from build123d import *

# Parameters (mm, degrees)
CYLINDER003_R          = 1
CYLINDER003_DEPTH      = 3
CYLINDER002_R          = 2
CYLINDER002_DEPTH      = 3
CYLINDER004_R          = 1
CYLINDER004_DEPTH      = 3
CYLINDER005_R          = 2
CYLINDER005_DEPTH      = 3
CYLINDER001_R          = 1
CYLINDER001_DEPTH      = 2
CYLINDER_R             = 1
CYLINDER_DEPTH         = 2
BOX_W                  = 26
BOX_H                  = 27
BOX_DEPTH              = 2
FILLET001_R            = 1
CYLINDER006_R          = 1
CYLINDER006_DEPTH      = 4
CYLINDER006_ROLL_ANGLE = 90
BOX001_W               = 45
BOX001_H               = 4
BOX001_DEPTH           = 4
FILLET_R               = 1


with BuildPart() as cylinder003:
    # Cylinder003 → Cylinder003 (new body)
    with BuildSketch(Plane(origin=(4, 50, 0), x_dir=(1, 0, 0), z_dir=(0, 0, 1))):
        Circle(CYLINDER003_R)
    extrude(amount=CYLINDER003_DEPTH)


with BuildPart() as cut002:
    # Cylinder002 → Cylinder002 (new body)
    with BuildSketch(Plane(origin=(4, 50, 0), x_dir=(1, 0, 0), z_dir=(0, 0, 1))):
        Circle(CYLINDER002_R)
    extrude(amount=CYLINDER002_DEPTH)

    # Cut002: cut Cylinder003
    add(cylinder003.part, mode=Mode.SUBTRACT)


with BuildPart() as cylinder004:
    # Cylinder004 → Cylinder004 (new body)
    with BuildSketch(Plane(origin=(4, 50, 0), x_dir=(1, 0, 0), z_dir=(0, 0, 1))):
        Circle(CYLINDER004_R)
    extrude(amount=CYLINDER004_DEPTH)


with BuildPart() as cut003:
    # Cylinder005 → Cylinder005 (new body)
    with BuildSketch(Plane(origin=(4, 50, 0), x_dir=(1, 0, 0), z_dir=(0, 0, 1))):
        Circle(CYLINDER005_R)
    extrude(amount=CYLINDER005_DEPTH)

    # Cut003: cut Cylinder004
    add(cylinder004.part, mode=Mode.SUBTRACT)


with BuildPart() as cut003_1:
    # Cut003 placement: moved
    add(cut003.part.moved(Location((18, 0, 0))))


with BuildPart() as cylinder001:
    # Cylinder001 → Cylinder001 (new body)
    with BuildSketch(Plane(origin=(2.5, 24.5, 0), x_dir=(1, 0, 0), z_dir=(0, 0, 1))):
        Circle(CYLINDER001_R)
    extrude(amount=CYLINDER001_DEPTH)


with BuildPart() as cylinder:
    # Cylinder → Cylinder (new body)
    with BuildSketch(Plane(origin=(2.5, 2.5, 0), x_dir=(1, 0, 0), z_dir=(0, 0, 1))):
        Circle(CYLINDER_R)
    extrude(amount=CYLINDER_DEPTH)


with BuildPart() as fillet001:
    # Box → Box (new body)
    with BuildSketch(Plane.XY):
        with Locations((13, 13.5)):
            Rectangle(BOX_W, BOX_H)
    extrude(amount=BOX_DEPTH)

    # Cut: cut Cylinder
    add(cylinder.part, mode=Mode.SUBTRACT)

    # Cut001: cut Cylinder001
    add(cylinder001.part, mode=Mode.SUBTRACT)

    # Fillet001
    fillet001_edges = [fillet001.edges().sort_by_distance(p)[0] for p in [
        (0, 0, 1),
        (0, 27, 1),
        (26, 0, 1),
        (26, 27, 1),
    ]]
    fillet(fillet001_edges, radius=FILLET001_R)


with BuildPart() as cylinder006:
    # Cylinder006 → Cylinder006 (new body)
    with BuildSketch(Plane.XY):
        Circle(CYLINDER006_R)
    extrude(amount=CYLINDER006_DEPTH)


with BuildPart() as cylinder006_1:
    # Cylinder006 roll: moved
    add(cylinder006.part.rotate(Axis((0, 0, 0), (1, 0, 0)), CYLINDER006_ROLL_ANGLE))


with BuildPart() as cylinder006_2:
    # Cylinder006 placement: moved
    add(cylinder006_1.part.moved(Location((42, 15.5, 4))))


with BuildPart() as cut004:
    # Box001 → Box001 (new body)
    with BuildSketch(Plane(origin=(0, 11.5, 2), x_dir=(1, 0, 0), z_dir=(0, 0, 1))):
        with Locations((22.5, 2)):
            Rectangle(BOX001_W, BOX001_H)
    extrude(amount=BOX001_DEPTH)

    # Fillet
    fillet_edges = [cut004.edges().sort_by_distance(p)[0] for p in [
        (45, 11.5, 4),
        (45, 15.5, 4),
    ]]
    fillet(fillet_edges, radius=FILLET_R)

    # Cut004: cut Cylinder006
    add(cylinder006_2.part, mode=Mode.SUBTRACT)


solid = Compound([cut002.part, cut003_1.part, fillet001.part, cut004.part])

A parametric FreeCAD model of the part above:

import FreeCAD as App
import Part
import Sketcher


def edges_at(feature, points):
    """Names of the edges that pass closest to the given points."""
    edges = feature.Shape.Edges
    near = lambda p: min(range(len(edges)), key=lambda i: edges[i].distToShape(Part.Vertex(*p))[0])
    return sorted({f"Edge{near(p) + 1}" for p in points})


def add_polygon(sketch, points):
    """Adds a closed chain of lines whose ends are joined by coincident constraints."""
    first, n = sketch.GeometryCount, len(points)
    for a, b in zip(points, points[1:] + points[:1]):
        sketch.addGeometry(Part.LineSegment(App.Vector(*a, 0), App.Vector(*b, 0)), False)
    for i in range(n):
        sketch.addConstraint(Sketcher.Constraint("Coincident", first + i, 2, first + (i + 1) % n, 1))

doc = App.newDocument("Part")
body = doc.addObject("PartDesign::Body", "Body")

# Sketch on XY plane
sketch1 = doc.addObject("Sketcher::SketchObject", "Sketch")
body.addObject(sketch1)
sketch1.AttachmentSupport = (doc.XY_Plane, [""])
sketch1.MapMode = "FlatFace"
sketch1.addGeometry(Part.Circle(App.Vector(4, 50, 0), App.Vector(0, 0, 1), 1), False)
sketch1.addConstraint(Sketcher.Constraint("Diameter", 0, 2.0))
sketch1.addConstraint(Sketcher.Constraint("DistanceX", -1, 1, 0, 3, 4.0))
sketch1.addConstraint(Sketcher.Constraint("DistanceY", -1, 1, 0, 3, 50.0))
pad1 = doc.addObject("PartDesign::Pad", "Pad")
body.addObject(pad1)
pad1.Profile = sketch1
pad1.Length = 3
body2 = doc.addObject("PartDesign::Body", "Body001")

# Sketch on XY plane
sketch2 = doc.addObject("Sketcher::SketchObject", "Sketch001")
body2.addObject(sketch2)
sketch2.AttachmentSupport = (doc.getObject("XY_Plane001"), [""])
sketch2.MapMode = "FlatFace"
sketch2.addGeometry(Part.Circle(App.Vector(4, 50, 0), App.Vector(0, 0, 1), 2), False)
sketch2.addConstraint(Sketcher.Constraint("Diameter", 0, 4.0))
sketch2.addConstraint(Sketcher.Constraint("DistanceX", -1, 1, 0, 3, 4.0))
sketch2.addConstraint(Sketcher.Constraint("DistanceY", -1, 1, 0, 3, 50.0))
pad2 = doc.addObject("PartDesign::Pad", "Pad001")
body2.addObject(pad2)
pad2.Profile = sketch2
pad2.Length = 3
doc.recompute()

boolean = doc.addObject("PartDesign::Boolean", "Boolean")
body2.addObject(boolean)
boolean.Type = "Cut"
boolean.addObjects([body])
body3 = doc.addObject("PartDesign::Body", "Body002")

# Sketch on XY plane
sketch3 = doc.addObject("Sketcher::SketchObject", "Sketch002")
body3.addObject(sketch3)
sketch3.AttachmentSupport = (doc.getObject("XY_Plane002"), [""])
sketch3.MapMode = "FlatFace"
sketch3.addGeometry(Part.Circle(App.Vector(4, 50, 0), App.Vector(0, 0, 1), 1), False)
sketch3.addConstraint(Sketcher.Constraint("Diameter", 0, 2.0))
sketch3.addConstraint(Sketcher.Constraint("DistanceX", -1, 1, 0, 3, 4.0))
sketch3.addConstraint(Sketcher.Constraint("DistanceY", -1, 1, 0, 3, 50.0))
pad3 = doc.addObject("PartDesign::Pad", "Pad002")
body3.addObject(pad3)
pad3.Profile = sketch3
pad3.Length = 3
body4 = doc.addObject("PartDesign::Body", "Body003")

# Sketch on XY plane
sketch4 = doc.addObject("Sketcher::SketchObject", "Sketch003")
body4.addObject(sketch4)
sketch4.AttachmentSupport = (doc.getObject("XY_Plane003"), [""])
sketch4.MapMode = "FlatFace"
sketch4.addGeometry(Part.Circle(App.Vector(4, 50, 0), App.Vector(0, 0, 1), 2), False)
sketch4.addConstraint(Sketcher.Constraint("Diameter", 0, 4.0))
sketch4.addConstraint(Sketcher.Constraint("DistanceX", -1, 1, 0, 3, 4.0))
sketch4.addConstraint(Sketcher.Constraint("DistanceY", -1, 1, 0, 3, 50.0))
pad4 = doc.addObject("PartDesign::Pad", "Pad003")
body4.addObject(pad4)
pad4.Profile = sketch4
pad4.Length = 3
doc.recompute()

boolean2 = doc.addObject("PartDesign::Boolean", "Boolean001")
body4.addObject(boolean2)
boolean2.Type = "Cut"
boolean2.addObjects([body3])
body5 = doc.addObject("PartDesign::Body", "Body004")
doc.recompute()

body4.Placement = App.Placement(App.Vector(18, 0, 0), App.Rotation(App.Vector(0, 0, 1), 0))
boolean3 = doc.addObject("PartDesign::Boolean", "Boolean002")
body5.addObject(boolean3)
boolean3.Type = "Fuse"
boolean3.addObjects([body4])
body6 = doc.addObject("PartDesign::Body", "Body005")

# Sketch on XY plane
sketch5 = doc.addObject("Sketcher::SketchObject", "Sketch004")
body6.addObject(sketch5)
sketch5.AttachmentSupport = (doc.getObject("XY_Plane005"), [""])
sketch5.MapMode = "FlatFace"
sketch5.addGeometry(Part.Circle(App.Vector(2.5, 24.5, 0), App.Vector(0, 0, 1), 1), False)
sketch5.addConstraint(Sketcher.Constraint("Diameter", 0, 2.0))
sketch5.addConstraint(Sketcher.Constraint("DistanceX", -1, 1, 0, 3, 2.5))
sketch5.addConstraint(Sketcher.Constraint("DistanceY", -1, 1, 0, 3, 24.5))
pad5 = doc.addObject("PartDesign::Pad", "Pad004")
body6.addObject(pad5)
pad5.Profile = sketch5
pad5.Length = 2
body7 = doc.addObject("PartDesign::Body", "Body006")

# Sketch on XY plane
sketch6 = doc.addObject("Sketcher::SketchObject", "Sketch005")
body7.addObject(sketch6)
sketch6.AttachmentSupport = (doc.getObject("XY_Plane006"), [""])
sketch6.MapMode = "FlatFace"
sketch6.addGeometry(Part.Circle(App.Vector(2.5, 2.5, 0), App.Vector(0, 0, 1), 1), False)
sketch6.addConstraint(Sketcher.Constraint("Diameter", 0, 2.0))
sketch6.addConstraint(Sketcher.Constraint("DistanceX", -1, 1, 0, 3, 2.5))
sketch6.addConstraint(Sketcher.Constraint("DistanceY", -1, 1, 0, 3, 2.5))
pad6 = doc.addObject("PartDesign::Pad", "Pad005")
body7.addObject(pad6)
pad6.Profile = sketch6
pad6.Length = 2
body8 = doc.addObject("PartDesign::Body", "Body007")

# Sketch on XY plane
sketch7 = doc.addObject("Sketcher::SketchObject", "Sketch006")
body8.addObject(sketch7)
sketch7.AttachmentSupport = (doc.getObject("XY_Plane007"), [""])
sketch7.MapMode = "FlatFace"
add_polygon(sketch7, [(0, 27), (0, 0), (26, 0), (26, 27)])  # lines 0-3
sketch7.addConstraint(Sketcher.Constraint("Vertical", 0))
sketch7.addConstraint(Sketcher.Constraint("Horizontal", 1))
sketch7.addConstraint(Sketcher.Constraint("Vertical", 2))
sketch7.addConstraint(Sketcher.Constraint("Horizontal", 3))
sketch7.addConstraint(Sketcher.Constraint("Coincident", 0, 2, -1, 1))
sketch7.addConstraint(Sketcher.Constraint("DistanceX", 1, 1, 1, 2, 26.0))
sketch7.addConstraint(Sketcher.Constraint("DistanceY", 0, 2, 0, 1, 27.0))
pad7 = doc.addObject("PartDesign::Pad", "Pad006")
body8.addObject(pad7)
pad7.Profile = sketch7
pad7.Length = 2
doc.recompute()

boolean4 = doc.addObject("PartDesign::Boolean", "Boolean003")
body8.addObject(boolean4)
boolean4.Type = "Cut"
boolean4.addObjects([body7])
doc.recompute()

boolean5 = doc.addObject("PartDesign::Boolean", "Boolean004")
body8.addObject(boolean5)
boolean5.Type = "Cut"
boolean5.addObjects([body6])
doc.recompute()

fillet = doc.addObject("PartDesign::Fillet", "Fillet")
body8.addObject(fillet)
fillet.Base = (boolean5, edges_at(boolean5, [
    (0, 0, 1),
    (0, 27, 1),
    (26, 0, 1),
    (26, 27, 1),
]))
fillet.Radius = 1
body9 = doc.addObject("PartDesign::Body", "Body008")

# Sketch on XY plane
sketch8 = doc.addObject("Sketcher::SketchObject", "Sketch007")
body9.addObject(sketch8)
sketch8.AttachmentSupport = (doc.getObject("XY_Plane008"), [""])
sketch8.MapMode = "FlatFace"
sketch8.addGeometry(Part.Circle(App.Vector(0, 0, 0), App.Vector(0, 0, 1), 1), False)
sketch8.addConstraint(Sketcher.Constraint("Coincident", 0, 3, -1, 1))
sketch8.addConstraint(Sketcher.Constraint("Diameter", 0, 2.0))
pad8 = doc.addObject("PartDesign::Pad", "Pad007")
body9.addObject(pad8)
pad8.Profile = sketch8
pad8.Length = 4
body10 = doc.addObject("PartDesign::Body", "Body009")
doc.recompute()

body9.Placement = App.Placement(App.Vector(0, 0, 0), App.Rotation(App.Vector(1, 0, 0), 90))
boolean6 = doc.addObject("PartDesign::Boolean", "Boolean005")
body10.addObject(boolean6)
boolean6.Type = "Fuse"
boolean6.addObjects([body9])
body11 = doc.addObject("PartDesign::Body", "Body010")
doc.recompute()

body10.Placement = App.Placement(App.Vector(42, 15.5, 4), App.Rotation(App.Vector(0, 0, 1), 0))
boolean7 = doc.addObject("PartDesign::Boolean", "Boolean006")
body11.addObject(boolean7)
boolean7.Type = "Fuse"
boolean7.addObjects([body10])
body12 = doc.addObject("PartDesign::Body", "Body011")

# Sketch on XY plane
sketch9 = doc.addObject("Sketcher::SketchObject", "Sketch008")
body12.addObject(sketch9)
sketch9.AttachmentSupport = (doc.getObject("XY_Plane011"), [""])
sketch9.MapMode = "FlatFace"
sketch9.AttachmentOffset = App.Placement(App.Vector(0, 0, 2), App.Rotation())
add_polygon(sketch9, [(0, 15.5), (0, 11.5), (45, 11.5), (45, 15.5)])  # lines 0-3
sketch9.addConstraint(Sketcher.Constraint("Vertical", 0))
sketch9.addConstraint(Sketcher.Constraint("Horizontal", 1))
sketch9.addConstraint(Sketcher.Constraint("Vertical", 2))
sketch9.addConstraint(Sketcher.Constraint("Horizontal", 3))
sketch9.addConstraint(Sketcher.Constraint("PointOnObject", 0, 2, -2))
sketch9.addConstraint(Sketcher.Constraint("DistanceX", 1, 1, 1, 2, 45.0))
sketch9.addConstraint(Sketcher.Constraint("DistanceY", 0, 2, 0, 1, 4.0))
sketch9.addConstraint(Sketcher.Constraint("DistanceY", -1, 1, 0, 2, 11.5))
pad9 = doc.addObject("PartDesign::Pad", "Pad008")
body12.addObject(pad9)
pad9.Profile = sketch9
pad9.Length = 4
doc.recompute()

fillet2 = doc.addObject("PartDesign::Fillet", "Fillet001")
body12.addObject(fillet2)
fillet2.Base = (pad9, edges_at(pad9, [(45, 11.5, 4), (45, 15.5, 4)]))
fillet2.Radius = 1
doc.recompute()

boolean8 = doc.addObject("PartDesign::Boolean", "Boolean007")
body12.addObject(boolean8)
boolean8.Type = "Cut"
boolean8.addObjects([body11])

doc.recompute()
